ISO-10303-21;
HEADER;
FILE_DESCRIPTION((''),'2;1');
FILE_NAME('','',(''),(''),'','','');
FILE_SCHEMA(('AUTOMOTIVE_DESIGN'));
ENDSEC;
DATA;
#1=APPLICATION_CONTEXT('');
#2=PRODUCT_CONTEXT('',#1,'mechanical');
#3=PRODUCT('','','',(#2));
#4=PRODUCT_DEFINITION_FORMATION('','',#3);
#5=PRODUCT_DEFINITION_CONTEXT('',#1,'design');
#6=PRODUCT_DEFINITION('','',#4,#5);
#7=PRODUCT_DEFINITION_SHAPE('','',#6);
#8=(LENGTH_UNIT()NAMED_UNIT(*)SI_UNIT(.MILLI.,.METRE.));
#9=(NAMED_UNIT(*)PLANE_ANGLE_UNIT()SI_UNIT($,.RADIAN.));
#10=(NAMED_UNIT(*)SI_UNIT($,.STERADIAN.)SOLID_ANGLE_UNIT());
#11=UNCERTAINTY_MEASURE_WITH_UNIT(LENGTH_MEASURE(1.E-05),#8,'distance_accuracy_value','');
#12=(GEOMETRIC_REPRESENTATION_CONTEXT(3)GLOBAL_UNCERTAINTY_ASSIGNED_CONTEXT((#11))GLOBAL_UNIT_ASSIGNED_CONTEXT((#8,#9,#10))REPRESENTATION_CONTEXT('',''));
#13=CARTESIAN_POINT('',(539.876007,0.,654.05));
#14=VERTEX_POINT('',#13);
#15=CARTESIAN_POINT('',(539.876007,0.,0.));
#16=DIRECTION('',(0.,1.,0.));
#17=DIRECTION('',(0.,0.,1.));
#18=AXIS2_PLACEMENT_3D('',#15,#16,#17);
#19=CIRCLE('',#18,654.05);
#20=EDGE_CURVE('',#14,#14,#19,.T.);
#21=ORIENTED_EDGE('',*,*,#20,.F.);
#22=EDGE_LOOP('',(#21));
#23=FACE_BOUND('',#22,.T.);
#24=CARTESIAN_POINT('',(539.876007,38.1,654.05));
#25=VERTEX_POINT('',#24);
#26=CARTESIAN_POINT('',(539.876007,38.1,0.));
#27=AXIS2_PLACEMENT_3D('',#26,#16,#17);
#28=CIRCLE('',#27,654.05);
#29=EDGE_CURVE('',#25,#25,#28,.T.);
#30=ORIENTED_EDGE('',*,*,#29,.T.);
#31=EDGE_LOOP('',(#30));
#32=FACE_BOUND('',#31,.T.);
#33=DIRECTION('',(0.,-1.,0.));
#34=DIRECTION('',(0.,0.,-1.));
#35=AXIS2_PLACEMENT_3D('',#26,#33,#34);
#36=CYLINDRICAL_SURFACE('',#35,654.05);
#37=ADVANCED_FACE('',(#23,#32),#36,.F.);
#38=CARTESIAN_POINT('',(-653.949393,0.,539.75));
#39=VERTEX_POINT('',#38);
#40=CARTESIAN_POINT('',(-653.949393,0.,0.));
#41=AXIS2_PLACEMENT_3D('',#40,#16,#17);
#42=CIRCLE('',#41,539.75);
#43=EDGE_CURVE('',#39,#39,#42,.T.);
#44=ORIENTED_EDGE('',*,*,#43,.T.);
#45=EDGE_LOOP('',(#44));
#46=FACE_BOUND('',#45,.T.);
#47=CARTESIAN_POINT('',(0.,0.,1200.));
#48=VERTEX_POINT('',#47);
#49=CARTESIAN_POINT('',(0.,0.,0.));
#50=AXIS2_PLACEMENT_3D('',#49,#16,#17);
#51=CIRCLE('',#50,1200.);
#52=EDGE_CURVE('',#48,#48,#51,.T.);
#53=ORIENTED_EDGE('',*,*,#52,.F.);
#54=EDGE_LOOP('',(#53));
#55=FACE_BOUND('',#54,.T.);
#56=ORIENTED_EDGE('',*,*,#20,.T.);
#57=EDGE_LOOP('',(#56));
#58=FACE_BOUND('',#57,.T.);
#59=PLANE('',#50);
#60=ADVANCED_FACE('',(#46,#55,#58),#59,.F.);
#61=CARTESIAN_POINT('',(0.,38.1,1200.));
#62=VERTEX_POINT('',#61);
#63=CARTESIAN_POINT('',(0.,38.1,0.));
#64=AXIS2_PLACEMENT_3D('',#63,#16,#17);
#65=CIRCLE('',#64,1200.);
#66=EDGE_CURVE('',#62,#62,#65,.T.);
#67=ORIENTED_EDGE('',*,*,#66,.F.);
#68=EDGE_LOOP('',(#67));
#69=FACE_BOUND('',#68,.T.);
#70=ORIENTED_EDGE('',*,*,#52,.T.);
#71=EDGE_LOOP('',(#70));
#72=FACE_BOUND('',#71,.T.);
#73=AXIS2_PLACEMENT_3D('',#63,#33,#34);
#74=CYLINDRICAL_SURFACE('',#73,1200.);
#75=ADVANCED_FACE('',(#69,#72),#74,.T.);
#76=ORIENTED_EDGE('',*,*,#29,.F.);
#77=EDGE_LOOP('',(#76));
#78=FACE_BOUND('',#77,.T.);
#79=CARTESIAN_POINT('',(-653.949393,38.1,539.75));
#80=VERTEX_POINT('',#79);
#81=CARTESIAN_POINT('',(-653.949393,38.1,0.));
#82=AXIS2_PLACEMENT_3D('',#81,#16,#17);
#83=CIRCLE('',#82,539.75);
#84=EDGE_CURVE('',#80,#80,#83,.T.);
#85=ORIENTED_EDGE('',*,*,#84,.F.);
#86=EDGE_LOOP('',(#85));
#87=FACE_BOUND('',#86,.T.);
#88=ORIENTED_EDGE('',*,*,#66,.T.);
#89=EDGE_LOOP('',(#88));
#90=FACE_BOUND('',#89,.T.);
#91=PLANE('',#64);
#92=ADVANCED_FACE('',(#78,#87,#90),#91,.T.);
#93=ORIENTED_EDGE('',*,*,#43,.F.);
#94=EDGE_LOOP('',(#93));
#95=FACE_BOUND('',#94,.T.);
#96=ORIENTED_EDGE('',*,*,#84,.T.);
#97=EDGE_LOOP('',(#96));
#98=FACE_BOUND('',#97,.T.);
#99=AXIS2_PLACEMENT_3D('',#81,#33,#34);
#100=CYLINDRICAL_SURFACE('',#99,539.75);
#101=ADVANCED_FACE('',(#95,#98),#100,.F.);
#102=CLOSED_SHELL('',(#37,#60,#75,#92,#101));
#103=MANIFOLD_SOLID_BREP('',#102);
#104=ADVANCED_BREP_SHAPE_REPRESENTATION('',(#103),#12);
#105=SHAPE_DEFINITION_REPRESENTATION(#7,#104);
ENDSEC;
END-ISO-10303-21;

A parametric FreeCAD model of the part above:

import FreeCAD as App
import Part
import Sketcher

V = App.Vector
Q = App.Units.Quantity

doc = App.newDocument("Part")
body = doc.addObject("PartDesign::Body", "Body")

# Sketch on XZ plane
sketch1 = body.newObject("Sketcher::SketchObject", "Sketch")
sketch1.AttachmentSupport = (doc.getObject("XZ_Plane"), [""])
sketch1.MapMode = "FlatFace"
sketch1.addGeometry([
    Part.Circle(V(0, 0, 0), V(0, 0, 1), 1200),
    Part.Circle(V(-653.949393, 0, 0), V(0, 0, 1), 539.75),
    Part.Circle(V(539.876007, 0, 0), V(0, 0, 1), 654.05),
], False)
sketch1.addConstraint([
    Sketcher.Constraint("Coincident", 0, 3, -1, 1),
    Sketcher.Constraint("PointOnObject", 1, 3, -1),
    Sketcher.Constraint("PointOnObject", 2, 3, -1),
    Sketcher.Constraint("Diameter", 1, Q("42.5 in")),
    Sketcher.Constraint("Diameter", 2, Q("51.5 in")),
    Sketcher.Constraint("Diameter", 0, 2400.0),
    Sketcher.Constraint("DistanceX", 1, 3, 2, 3, Q("47.001 in")),
    Sketcher.Constraint("DistanceX", 1, 3, -1, 1, 653.949393),
])
pad1 = body.newObject("PartDesign::Pad", "Pad")
pad1.Profile = sketch1
pad1.Length = Q("1.5 in")
pad1.Reversed = True

doc.recompute()
